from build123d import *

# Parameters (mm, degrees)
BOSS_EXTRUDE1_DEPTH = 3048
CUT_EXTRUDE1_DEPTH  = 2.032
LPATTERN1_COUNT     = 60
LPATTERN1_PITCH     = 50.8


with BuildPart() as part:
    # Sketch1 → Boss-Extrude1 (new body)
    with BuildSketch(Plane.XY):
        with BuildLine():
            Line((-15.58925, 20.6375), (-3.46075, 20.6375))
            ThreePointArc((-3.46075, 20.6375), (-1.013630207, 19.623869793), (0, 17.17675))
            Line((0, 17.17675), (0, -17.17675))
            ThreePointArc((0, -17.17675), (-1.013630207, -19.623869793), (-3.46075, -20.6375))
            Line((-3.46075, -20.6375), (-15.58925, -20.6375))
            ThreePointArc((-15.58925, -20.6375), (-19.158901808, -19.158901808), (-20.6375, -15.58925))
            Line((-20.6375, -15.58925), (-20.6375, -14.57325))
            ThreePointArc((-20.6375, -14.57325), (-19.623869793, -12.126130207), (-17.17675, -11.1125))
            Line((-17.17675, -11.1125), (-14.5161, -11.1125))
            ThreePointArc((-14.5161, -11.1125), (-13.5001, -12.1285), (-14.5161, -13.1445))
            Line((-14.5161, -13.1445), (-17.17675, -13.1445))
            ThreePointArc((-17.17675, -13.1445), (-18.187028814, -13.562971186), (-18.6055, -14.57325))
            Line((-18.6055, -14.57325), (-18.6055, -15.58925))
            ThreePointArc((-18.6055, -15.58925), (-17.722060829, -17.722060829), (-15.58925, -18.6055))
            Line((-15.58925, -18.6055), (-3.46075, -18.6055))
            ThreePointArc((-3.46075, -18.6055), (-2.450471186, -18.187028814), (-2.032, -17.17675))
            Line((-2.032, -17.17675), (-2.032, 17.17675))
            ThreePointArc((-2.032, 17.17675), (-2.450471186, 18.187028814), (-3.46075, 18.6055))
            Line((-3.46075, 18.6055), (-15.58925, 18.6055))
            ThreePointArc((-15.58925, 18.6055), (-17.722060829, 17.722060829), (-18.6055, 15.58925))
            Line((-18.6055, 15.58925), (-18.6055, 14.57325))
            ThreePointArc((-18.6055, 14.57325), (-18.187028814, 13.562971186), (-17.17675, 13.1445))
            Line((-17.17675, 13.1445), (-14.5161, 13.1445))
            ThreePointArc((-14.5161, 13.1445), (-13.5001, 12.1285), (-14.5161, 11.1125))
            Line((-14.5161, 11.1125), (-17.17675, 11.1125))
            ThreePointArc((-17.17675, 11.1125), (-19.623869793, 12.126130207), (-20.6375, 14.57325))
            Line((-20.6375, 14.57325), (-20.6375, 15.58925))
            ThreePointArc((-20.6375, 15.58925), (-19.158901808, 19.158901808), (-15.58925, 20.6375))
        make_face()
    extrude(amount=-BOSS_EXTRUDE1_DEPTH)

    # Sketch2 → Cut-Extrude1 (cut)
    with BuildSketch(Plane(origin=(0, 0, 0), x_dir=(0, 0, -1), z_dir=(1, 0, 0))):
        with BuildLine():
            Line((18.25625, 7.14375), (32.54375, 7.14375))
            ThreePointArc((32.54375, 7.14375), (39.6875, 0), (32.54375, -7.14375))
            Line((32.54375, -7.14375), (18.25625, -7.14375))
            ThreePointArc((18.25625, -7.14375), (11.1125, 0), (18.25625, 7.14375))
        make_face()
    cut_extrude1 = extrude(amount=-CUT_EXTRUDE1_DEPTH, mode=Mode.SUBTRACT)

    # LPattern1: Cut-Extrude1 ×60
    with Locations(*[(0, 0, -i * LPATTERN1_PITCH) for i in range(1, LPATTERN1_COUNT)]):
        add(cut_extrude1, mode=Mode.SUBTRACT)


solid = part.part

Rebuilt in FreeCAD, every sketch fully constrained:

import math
import FreeCAD as App
import Part
import Sketcher
Q = App.Units.Quantity

doc = App.newDocument("Part")
body = doc.addObject("PartDesign::Body", "Body")

sketch1 = body.newObject("Sketcher::SketchObject", "Sketch")
sketch1.AttachmentSupport = (doc.getObject("XY_Plane"), [""])
sketch1.MapMode = "FlatFace"
sketch1.addGeometry([
    Part.LineSegment(App.Vector(-3.5, 20.6, 0), App.Vector(-15.6, 20.6, 0)),
    Part.ArcOfCircle(Part.Circle(App.Vector(-15.6, 15.6, 0), App.Vector(0, 0, 1), 5), math.radians(90), math.radians(180)),
    Part.LineSegment(App.Vector(-20.6, 15.6, 0), App.Vector(-20.6, 14.6, 0)),
    Part.ArcOfCircle(Part.Circle(App.Vector(-17.2, 14.6, 0), App.Vector(0, 0, 1), 3.5), math.radians(180), math.radians(270)),
    Part.LineSegment(App.Vector(-17.2, 11.1, 0), App.Vector(-14.5, 11.1, 0)),
    Part.ArcOfCircle(Part.Circle(App.Vector(-14.5, 12.1, 0), App.Vector(0, 0, 1), 1), math.radians(-90), math.radians(90)),
    Part.LineSegment(App.Vector(-14.5, 13.1, 0), App.Vector(-17.2, 13.1, 0)),
    Part.ArcOfCircle(Part.Circle(App.Vector(-17.2, 14.6, 0), App.Vector(0, 0, 1), 1.4), math.radians(180), math.radians(270)),
    Part.LineSegment(App.Vector(-18.6, 14.6, 0), App.Vector(-18.6, 15.6, 0)),
    Part.ArcOfCircle(Part.Circle(App.Vector(-15.6, 15.6, 0), App.Vector(0, 0, 1), 3), math.radians(90), math.radians(180)),
    Part.LineSegment(App.Vector(-15.6, 18.6, 0), App.Vector(-3.5, 18.6, 0)),
    Part.ArcOfCircle(Part.Circle(App.Vector(-3.5, 17.2, 0), App.Vector(0, 0, 1), 1.4), math.radians(0), math.radians(90)),
    Part.LineSegment(App.Vector(-2, 17.2, 0), App.Vector(-2, -17.2, 0)),
    Part.ArcOfCircle(Part.Circle(App.Vector(-3.5, -17.2, 0), App.Vector(0, 0, 1), 1.4), math.radians(-90), math.radians(0)),
    Part.LineSegment(App.Vector(-3.5, -18.6, 0), App.Vector(-15.6, -18.6, 0)),
    Part.ArcOfCircle(Part.Circle(App.Vector(-15.6, -15.6, 0), App.Vector(0, 0, 1), 3), math.radians(180), math.radians(270)),
    Part.LineSegment(App.Vector(-18.6, -15.6, 0), App.Vector(-18.6, -14.6, 0)),
    Part.ArcOfCircle(Part.Circle(App.Vector(-17.2, -14.6, 0), App.Vector(0, 0, 1), 1.4), math.radians(90), math.radians(180)),
    Part.LineSegment(App.Vector(-17.2, -13.1, 0), App.Vector(-14.5, -13.1, 0)),
    Part.ArcOfCircle(Part.Circle(App.Vector(-14.5, -12.1, 0), App.Vector(0, 0, 1), 1), math.radians(-90), math.radians(90)),
    Part.LineSegment(App.Vector(-14.5, -11.1, 0), App.Vector(-17.2, -11.1, 0)),
    Part.ArcOfCircle(Part.Circle(App.Vector(-17.2, -14.6, 0), App.Vector(0, 0, 1), 3.5), math.radians(90), math.radians(180)),
    Part.LineSegment(App.Vector(-20.6, -14.6, 0), App.Vector(-20.6, -15.6, 0)),
    Part.ArcOfCircle(Part.Circle(App.Vector(-15.6, -15.6, 0), App.Vector(0, 0, 1), 5), math.radians(180), math.radians(270)),
    Part.LineSegment(App.Vector(-15.6, -20.6, 0), App.Vector(-3.5, -20.6, 0)),
    Part.ArcOfCircle(Part.Circle(App.Vector(-3.5, -17.2, 0), App.Vector(0, 0, 1), 3.5), math.radians(-90), math.radians(0)),
    Part.LineSegment(App.Vector(0, -17.2, 0), App.Vector(0, 17.2, 0)),
    Part.ArcOfCircle(Part.Circle(App.Vector(-3.5, 17.2, 0), App.Vector(0, 0, 1), 3.5), math.radians(0), math.radians(90)),
], False)
sketch1.addConstraint([
    Sketcher.Constraint("Tangent", 0, 2, 1, 1),
    Sketcher.Constraint("Tangent", 1, 2, 2, 1),
    Sketcher.Constraint("Tangent", 2, 2, 3, 1),
    Sketcher.Constraint("Tangent", 3, 2, 4, 1),
    Sketcher.Constraint("Tangent", 4, 2, 5, 1),
    Sketcher.Constraint("Tangent", 5, 2, 6, 1),
    Sketcher.Constraint("Tangent", 6, 2, 7, 2),
    Sketcher.Constraint("Tangent", 7, 1, 8, 1),
    Sketcher.Constraint("Tangent", 8, 2, 9, 2),
    Sketcher.Constraint("Tangent", 9, 1, 10, 1),
    Sketcher.Constraint("Tangent", 10, 2, 11, 2),
    Sketcher.Constraint("Tangent", 11, 1, 12, 1),
    Sketcher.Constraint("Tangent", 12, 2, 13, 2),
    Sketcher.Constraint("Tangent", 13, 1, 14, 1),
    Sketcher.Constraint("Tangent", 14, 2, 15, 2),
    Sketcher.Constraint("Tangent", 15, 1, 16, 1),
    Sketcher.Constraint("Tangent", 16, 2, 17, 2),
    Sketcher.Constraint("Tangent", 17, 1, 18, 1),
    Sketcher.Constraint("Tangent", 18, 2, 19, 1),
    Sketcher.Constraint("Tangent", 19, 2, 20, 1),
    Sketcher.Constraint("Tangent", 20, 2, 21, 1),
    Sketcher.Constraint("Tangent", 21, 2, 22, 1),
    Sketcher.Constraint("Tangent", 22, 2, 23, 1),
    Sketcher.Constraint("Tangent", 23, 2, 24, 1),
    Sketcher.Constraint("Tangent", 24, 2, 25, 1),
    Sketcher.Constraint("Tangent", 25, 2, 26, 1),
    Sketcher.Constraint("Tangent", 26, 2, 27, 1),
    Sketcher.Constraint("Tangent", 27, 2, 0, 1),
    Sketcher.Constraint("Horizontal", 0),
    Sketcher.Constraint("Vertical", 2),
    Sketcher.Constraint("Horizontal", 4),
    Sketcher.Constraint("Horizontal", 6),
    Sketcher.Constraint("Vertical", 8),
    Sketcher.Constraint("Horizontal", 10),
    Sketcher.Constraint("Vertical", 12),
    Sketcher.Constraint("Horizontal", 14),
    Sketcher.Constraint("Vertical", 16),
    Sketcher.Constraint("Horizontal", 18),
    Sketcher.Constraint("Horizontal", 20),
    Sketcher.Constraint("Vertical", 22),
    Sketcher.Constraint("Horizontal", 24),
    Sketcher.Constraint("Vertical", 26),
    Sketcher.Constraint("Coincident", 7, 3, 3, 3),
    Sketcher.Constraint("Coincident", 9, 3, 1, 3),
    Sketcher.Constraint("Coincident", 21, 3, 17, 3),
    Sketcher.Constraint("Coincident", 23, 3, 15, 3),
    Sketcher.Constraint("Coincident", 25, 3, 13, 3),
    Sketcher.Constraint("Coincident", 27, 3, 11, 3),
    Sketcher.Constraint("Equal", 7, 11),
    Sketcher.Constraint("Equal", 11, 13),
    Sketcher.Constraint("Equal", 9, 15),
    Sketcher.Constraint("Equal", 13, 17),
    Sketcher.Constraint("Symmetric", 25, 2, 26, 2, -1, 1),
    Sketcher.Constraint("Symmetric", 3, 3, 17, 3, -1),
    Sketcher.Constraint("Vertical", 5, 3, 19, 3),
    Sketcher.Constraint("Radius", 5, Q("0.04 in")),
    Sketcher.Constraint("DistanceY", 2, 2, 2, 1, Q("0.04 in")),
    Sketcher.Constraint("DistanceX", 3, 3, 11, 3, Q("0.54 in")),
    Sketcher.Constraint("DistanceY", 13, 3, 7, 3, Q("1.25 in")),
    Sketcher.Constraint("DistanceX", 0, 2, 0, 1, Q("0.4775 in")),
    Sketcher.Constraint("DistanceY", -1, 1, 0, 2, Q("0.8125 in")),
    Sketcher.Constraint("DistanceX", 1, 2, 5, 3, Q("0.241 in")),
])
pad1 = body.newObject("PartDesign::Pad", "Pad")
pad1.Profile = sketch1
pad1.Length = Q("120 in")
pad1.Reversed = True

sketch2 = body.newObject("Sketcher::SketchObject", "Sketch001")
sketch2.AttachmentSupport = (doc.getObject("YZ_Plane"), [""])
sketch2.MapMode = "FlatFace"
sketch2.addGeometry([
    Part.LineSegment(App.Vector(7, -33, 0), App.Vector(7, -18, 0)),
    Part.ArcOfCircle(Part.Circle(App.Vector(0, -18, 0), App.Vector(0, 0, 1), 7), math.radians(0), math.radians(180)),
    Part.LineSegment(App.Vector(-7, -18, 0), App.Vector(-7, -33, 0)),
    Part.ArcOfCircle(Part.Circle(App.Vector(0, -33, 0), App.Vector(0, 0, 1), 7), math.radians(180), math.radians(360)),
], False)
sketch2.addConstraint([
    Sketcher.Constraint("Tangent", 0, 2, 1, 1),
    Sketcher.Constraint("Tangent", 1, 2, 2, 1),
    Sketcher.Constraint("Tangent", 2, 2, 3, 1),
    Sketcher.Constraint("Tangent", 3, 2, 0, 1),
    Sketcher.Constraint("Vertical", 0),
    Sketcher.Constraint("Vertical", 2),
    Sketcher.Constraint("PointOnObject", 1, 3, -2),
    Sketcher.Constraint("Radius", 1, Q("0.28125 in")),
    Sketcher.Constraint("DistanceY", 0, 1, 0, 2, Q("0.5625 in")),
    Sketcher.Constraint("DistanceY", 1, 3, -1, 1, Q("0.71875 in")),
])
pocket1 = body.newObject("PartDesign::Pocket", "Pocket")
pocket1.Profile = sketch2
pocket1.Length = Q("0.08 in")
doc.recompute()

linearpattern = body.newObject("PartDesign::LinearPattern", "LinearPattern")
linearpattern.Originals = [pocket1]
linearpattern.Direction = (doc.getObject("Z_Axis"), [""])
linearpattern.Mode = "offset"
linearpattern.Offset = Q("2 in")
linearpattern.Occurrences = 60
linearpattern.Reversed = True
body.Tip = linearpattern

doc.recompute()
